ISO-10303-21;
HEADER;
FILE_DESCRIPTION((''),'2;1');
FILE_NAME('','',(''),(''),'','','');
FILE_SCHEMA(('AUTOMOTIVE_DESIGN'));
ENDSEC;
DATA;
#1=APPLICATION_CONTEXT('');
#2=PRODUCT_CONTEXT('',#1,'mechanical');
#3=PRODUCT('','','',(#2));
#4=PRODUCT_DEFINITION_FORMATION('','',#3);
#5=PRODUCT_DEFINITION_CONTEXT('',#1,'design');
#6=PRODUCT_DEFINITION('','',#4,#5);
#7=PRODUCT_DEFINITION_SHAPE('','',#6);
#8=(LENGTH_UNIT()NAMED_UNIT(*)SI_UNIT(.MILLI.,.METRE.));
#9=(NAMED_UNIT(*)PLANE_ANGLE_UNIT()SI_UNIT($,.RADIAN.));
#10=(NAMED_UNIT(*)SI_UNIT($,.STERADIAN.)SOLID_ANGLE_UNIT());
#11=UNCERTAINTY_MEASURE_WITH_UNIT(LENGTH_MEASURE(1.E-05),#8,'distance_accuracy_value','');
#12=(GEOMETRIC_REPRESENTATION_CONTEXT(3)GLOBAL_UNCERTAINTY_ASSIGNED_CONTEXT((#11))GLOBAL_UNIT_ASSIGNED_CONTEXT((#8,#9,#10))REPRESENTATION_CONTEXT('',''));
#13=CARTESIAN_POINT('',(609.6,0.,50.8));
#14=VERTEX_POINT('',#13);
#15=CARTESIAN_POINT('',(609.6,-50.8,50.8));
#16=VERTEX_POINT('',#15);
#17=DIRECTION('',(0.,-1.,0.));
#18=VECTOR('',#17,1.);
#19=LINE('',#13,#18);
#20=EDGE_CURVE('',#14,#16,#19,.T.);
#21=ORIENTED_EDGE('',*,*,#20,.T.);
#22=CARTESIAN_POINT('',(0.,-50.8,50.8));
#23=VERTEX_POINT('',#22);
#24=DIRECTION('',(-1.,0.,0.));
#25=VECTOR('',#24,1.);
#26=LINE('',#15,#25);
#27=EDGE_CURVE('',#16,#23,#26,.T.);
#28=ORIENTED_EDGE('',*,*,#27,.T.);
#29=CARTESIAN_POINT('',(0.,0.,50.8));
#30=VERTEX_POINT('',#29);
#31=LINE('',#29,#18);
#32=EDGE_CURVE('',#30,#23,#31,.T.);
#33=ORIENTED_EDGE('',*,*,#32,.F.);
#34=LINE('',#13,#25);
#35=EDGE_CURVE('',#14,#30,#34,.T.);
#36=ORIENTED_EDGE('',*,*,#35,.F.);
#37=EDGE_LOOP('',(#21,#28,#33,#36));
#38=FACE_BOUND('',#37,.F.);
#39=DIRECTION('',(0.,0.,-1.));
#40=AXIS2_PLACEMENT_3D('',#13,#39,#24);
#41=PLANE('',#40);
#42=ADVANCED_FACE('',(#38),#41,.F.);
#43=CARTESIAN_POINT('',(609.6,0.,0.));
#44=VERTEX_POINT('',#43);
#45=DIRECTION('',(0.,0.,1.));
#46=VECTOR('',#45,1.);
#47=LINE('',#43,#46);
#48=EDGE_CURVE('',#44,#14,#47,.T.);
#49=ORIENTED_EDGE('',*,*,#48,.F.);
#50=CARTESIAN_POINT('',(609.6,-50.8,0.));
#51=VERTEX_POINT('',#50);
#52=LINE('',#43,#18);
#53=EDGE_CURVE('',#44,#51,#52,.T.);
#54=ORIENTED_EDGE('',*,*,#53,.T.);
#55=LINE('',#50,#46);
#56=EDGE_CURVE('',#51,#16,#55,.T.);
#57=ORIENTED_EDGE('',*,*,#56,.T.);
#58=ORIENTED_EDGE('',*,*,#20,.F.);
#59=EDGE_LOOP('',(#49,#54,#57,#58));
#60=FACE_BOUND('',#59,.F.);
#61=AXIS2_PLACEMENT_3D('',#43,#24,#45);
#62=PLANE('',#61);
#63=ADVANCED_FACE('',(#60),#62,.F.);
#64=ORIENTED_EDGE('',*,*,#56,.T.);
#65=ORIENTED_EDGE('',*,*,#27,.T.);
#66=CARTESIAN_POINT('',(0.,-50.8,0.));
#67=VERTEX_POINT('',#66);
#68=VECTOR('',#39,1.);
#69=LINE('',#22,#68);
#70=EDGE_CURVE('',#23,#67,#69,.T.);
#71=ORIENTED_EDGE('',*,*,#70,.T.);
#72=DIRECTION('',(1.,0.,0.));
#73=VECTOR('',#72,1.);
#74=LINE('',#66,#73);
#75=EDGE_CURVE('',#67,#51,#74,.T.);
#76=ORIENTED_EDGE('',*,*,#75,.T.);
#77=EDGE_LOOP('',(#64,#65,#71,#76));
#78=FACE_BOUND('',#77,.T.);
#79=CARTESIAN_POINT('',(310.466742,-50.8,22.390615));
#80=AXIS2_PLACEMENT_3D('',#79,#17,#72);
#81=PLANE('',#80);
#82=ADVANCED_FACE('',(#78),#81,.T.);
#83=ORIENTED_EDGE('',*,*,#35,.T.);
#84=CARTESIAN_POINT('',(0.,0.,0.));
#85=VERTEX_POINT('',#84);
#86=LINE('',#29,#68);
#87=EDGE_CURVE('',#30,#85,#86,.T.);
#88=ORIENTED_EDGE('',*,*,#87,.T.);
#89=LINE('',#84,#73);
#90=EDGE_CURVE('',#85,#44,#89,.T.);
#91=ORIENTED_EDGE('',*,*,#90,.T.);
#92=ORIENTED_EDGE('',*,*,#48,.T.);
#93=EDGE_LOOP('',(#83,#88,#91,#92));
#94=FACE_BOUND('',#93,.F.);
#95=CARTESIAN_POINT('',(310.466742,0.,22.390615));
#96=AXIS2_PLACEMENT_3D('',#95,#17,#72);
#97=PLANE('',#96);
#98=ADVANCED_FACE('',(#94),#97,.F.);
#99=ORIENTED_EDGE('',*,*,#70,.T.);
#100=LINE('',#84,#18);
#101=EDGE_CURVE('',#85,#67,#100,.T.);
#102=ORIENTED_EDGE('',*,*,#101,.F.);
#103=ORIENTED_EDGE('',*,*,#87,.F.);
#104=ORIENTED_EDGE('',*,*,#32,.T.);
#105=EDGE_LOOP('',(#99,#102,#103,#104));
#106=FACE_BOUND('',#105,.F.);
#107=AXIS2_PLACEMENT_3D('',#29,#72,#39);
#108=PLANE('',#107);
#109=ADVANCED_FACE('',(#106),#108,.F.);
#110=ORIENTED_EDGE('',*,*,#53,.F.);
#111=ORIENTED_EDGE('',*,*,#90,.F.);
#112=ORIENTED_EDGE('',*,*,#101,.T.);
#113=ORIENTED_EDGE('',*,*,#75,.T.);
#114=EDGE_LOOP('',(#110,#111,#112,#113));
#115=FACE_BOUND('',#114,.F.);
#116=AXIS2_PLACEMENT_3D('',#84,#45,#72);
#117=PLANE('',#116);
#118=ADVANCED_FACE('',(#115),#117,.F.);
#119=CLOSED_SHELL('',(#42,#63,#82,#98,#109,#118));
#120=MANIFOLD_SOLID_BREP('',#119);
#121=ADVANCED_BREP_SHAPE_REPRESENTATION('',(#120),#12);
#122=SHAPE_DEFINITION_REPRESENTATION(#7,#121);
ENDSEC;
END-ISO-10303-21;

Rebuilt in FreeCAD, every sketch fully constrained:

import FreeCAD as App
import Part
import Sketcher
from FreeCAD import Vector
Q = App.Units.Quantity


def add_polygon(sketch, points):
    """Adds a closed chain of lines whose ends are joined by coincident constraints."""
    first, n = sketch.GeometryCount, len(points)
    for a, b in zip(points, points[1:] + points[:1]):
        sketch.addGeometry(Part.LineSegment(App.Vector(*a, 0), App.Vector(*b, 0)), False)
    for i in range(n):
        sketch.addConstraint(Sketcher.Constraint("Coincident", first + i, 2, first + (i + 1) % n, 1))

doc = App.newDocument("Part")
body = doc.addObject("PartDesign::Body", "Body")

# Sketch on XZ plane
sketch1 = body.newObject("Sketcher::SketchObject", "Sketch")
sketch1.AttachmentSupport = (doc.getObject("XZ_Plane"), [""])
sketch1.MapMode = "FlatFace"
add_polygon(sketch1, [(0, 0), (610, 0), (610, 51), (0, 51)])  # lines 0-3
sketch1.addConstraint([
    Sketcher.Constraint("Horizontal", 0),
    Sketcher.Constraint("Vertical", 1),
    Sketcher.Constraint("Horizontal", 2),
    Sketcher.Constraint("Vertical", 3),
    Sketcher.Constraint("Coincident", 3, 2, -1, 1),
    Sketcher.Constraint("DistanceX", 0, 1, 0, 2, Q("24 in")),
    Sketcher.Constraint("DistanceY", 1, 1, 1, 2, Q("2 in")),
])
pad1 = body.newObject("PartDesign::Pad", "Pad")
pad1.Profile = sketch1
pad1.Length = Q("2 in")

doc.recompute()
